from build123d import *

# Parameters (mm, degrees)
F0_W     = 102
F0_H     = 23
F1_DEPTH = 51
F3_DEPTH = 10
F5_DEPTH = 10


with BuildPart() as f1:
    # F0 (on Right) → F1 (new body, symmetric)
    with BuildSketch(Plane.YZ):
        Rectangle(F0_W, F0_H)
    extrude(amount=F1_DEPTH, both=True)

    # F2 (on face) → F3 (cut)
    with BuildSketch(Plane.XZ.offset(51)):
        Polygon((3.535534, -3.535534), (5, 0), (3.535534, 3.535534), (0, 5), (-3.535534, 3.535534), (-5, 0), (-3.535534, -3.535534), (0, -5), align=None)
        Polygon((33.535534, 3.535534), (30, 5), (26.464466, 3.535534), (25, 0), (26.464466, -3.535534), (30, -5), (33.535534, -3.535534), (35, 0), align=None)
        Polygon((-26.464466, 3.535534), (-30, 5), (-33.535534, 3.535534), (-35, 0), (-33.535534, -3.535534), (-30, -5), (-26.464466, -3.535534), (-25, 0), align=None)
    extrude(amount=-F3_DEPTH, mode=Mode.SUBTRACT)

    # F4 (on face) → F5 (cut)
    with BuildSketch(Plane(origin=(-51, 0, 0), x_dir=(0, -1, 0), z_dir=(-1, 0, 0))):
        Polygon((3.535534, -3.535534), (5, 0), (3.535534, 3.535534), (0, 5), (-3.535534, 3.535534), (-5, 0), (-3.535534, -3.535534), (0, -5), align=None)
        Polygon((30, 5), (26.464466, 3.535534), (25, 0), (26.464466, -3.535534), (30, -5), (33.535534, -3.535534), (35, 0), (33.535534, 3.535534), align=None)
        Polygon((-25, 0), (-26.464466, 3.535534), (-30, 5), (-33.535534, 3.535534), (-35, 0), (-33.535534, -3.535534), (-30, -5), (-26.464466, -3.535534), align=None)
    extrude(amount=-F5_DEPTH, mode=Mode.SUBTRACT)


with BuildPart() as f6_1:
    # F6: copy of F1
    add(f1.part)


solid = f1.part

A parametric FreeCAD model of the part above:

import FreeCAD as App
import Part
import Sketcher
Q = App.Units.Quantity


def add_polygon(sketch, points):
    """Adds a closed chain of lines whose ends are joined by coincident constraints."""
    first, n = sketch.GeometryCount, len(points)
    for a, b in zip(points, points[1:] + points[:1]):
        sketch.addGeometry(Part.LineSegment(App.Vector(*a, 0), App.Vector(*b, 0)), False)
    for i in range(n):
        sketch.addConstraint(Sketcher.Constraint("Coincident", first + i, 2, first + (i + 1) % n, 1))

doc = App.newDocument("Part")
body = doc.addObject("PartDesign::Body", "Body")

sketch1 = body.newObject("Sketcher::SketchObject", "Sketch")
sketch1.AttachmentSupport = (doc.getObject("YZ_Plane"), [""])
sketch1.MapMode = "FlatFace"
add_polygon(sketch1, [(-51, 12), (-51, -12), (51, -12), (51, 12)])
sketch1.addConstraint(Sketcher.Constraint("Vertical", 0))
sketch1.addConstraint(Sketcher.Constraint("Horizontal", 1))
sketch1.addConstraint(Sketcher.Constraint("Vertical", 2))
sketch1.addConstraint(Sketcher.Constraint("Horizontal", 3))
sketch1.addConstraint(Sketcher.Constraint("Symmetric", 0, 2, 2, 2, -1, 1))
sketch1.addConstraint(Sketcher.Constraint("DistanceX", 1, 1, 1, 2, Q("102 mm")))
sketch1.addConstraint(Sketcher.Constraint("DistanceY", 0, 2, 0, 1, Q("23 mm")))
pad1 = body.newObject("PartDesign::Pad", "Pad")
pad1.Profile = sketch1
pad1.Length = 102
pad1.Midplane = True

sketch2 = body.newObject("Sketcher::SketchObject", "Sketch001")
sketch2.AttachmentSupport = (doc.getObject("XZ_Plane"), [""])
sketch2.MapMode = "FlatFace"
sketch2.AttachmentOffset = App.Placement(App.Vector(0, 0, 51), App.Rotation())
add_polygon(sketch2, [(3.5, -3.5), (5, 0), (3.5, 3.5), (0, 5), (-3.5, 3.5), (-5, 0), (-3.5, -3.5), (0, -5)])
add_polygon(sketch2, [(33.5, 3.5), (30, 5), (26.5, 3.5), (25, 0), (26.5, -3.5), (30, -5), (33.5, -3.5), (35, 0)])
add_polygon(sketch2, [(-26.5, 3.5), (-30, 5), (-33.5, 3.5), (-35, 0), (-33.5, -3.5), (-30, -5), (-26.5, -3.5), (-25, 0)])
sketch2.addConstraint(Sketcher.Constraint("Symmetric", 0, 2, 4, 2, -1, 1))
sketch2.addConstraint(Sketcher.Constraint("Symmetric", 1, 2, 5, 2, -1, 1))
sketch2.addConstraint(Sketcher.Constraint("Symmetric", 2, 2, 6, 2, -1, 1))
sketch2.addConstraint(Sketcher.Constraint("Symmetric", 3, 2, 7, 2, -1, 1))
sketch2.addConstraint(Sketcher.Constraint("Symmetric", 12, 2, 16, 2, -1, 1))
sketch2.addConstraint(Sketcher.Constraint("Symmetric", 13, 2, 17, 2, -1, 1))
sketch2.addConstraint(Sketcher.Constraint("Symmetric", 14, 2, 18, 2, -1, 1))
sketch2.addConstraint(Sketcher.Constraint("Symmetric", 15, 2, 19, 2, -1, 1))
sketch2.addConstraint(Sketcher.Constraint("Symmetric", 8, 2, 20, 2, -1, 1))
sketch2.addConstraint(Sketcher.Constraint("Symmetric", 9, 2, 21, 2, -1, 1))
sketch2.addConstraint(Sketcher.Constraint("Symmetric", 10, 2, 22, 2, -1, 1))
sketch2.addConstraint(Sketcher.Constraint("Symmetric", 11, 2, 23, 2, -1, 1))
sketch2.addConstraint(Sketcher.Constraint("Symmetric", 1, 2, 3, 2, -2))
sketch2.addConstraint(Sketcher.Constraint("Symmetric", 8, 2, 16, 2, -2))
sketch2.addConstraint(Sketcher.Constraint("Symmetric", 15, 2, 17, 2, -2))
sketch2.addConstraint(Sketcher.Constraint("Symmetric", 11, 2, 21, 2, -2))
sketch2.addConstraint(Sketcher.Constraint("PointOnObject", 0, 2, -1))
sketch2.addConstraint(Sketcher.Constraint("PointOnObject", 2, 2, -2))
sketch2.addConstraint(Sketcher.Constraint("PointOnObject", 10, 2, -1))
sketch2.addConstraint(Sketcher.Constraint("PointOnObject", 14, 2, -1))
sketch2.addConstraint(Sketcher.Constraint("Perpendicular", 0, 2))
sketch2.addConstraint(Sketcher.Constraint("Parallel", 6, 8))
sketch2.addConstraint(Sketcher.Constraint("Parallel", 7, 9))
sketch2.addConstraint(Sketcher.Constraint("Perpendicular", 8, 10))
sketch2.addConstraint(Sketcher.Constraint("Perpendicular", 12, 14))
sketch2.addConstraint(Sketcher.Constraint("Horizontal", 2, 2, 8, 2))
sketch2.addConstraint(Sketcher.Constraint("Horizontal", 3, 2, 9, 2))
sketch2.addConstraint(Sketcher.Constraint("Horizontal", 11, 2, 13, 2))
sketch2.addConstraint(Sketcher.Constraint("Equal", 1, 2))
sketch2.addConstraint(Sketcher.Constraint("DistanceX", -1, 1, 0, 2, Q("5 mm")))
sketch2.addConstraint(Sketcher.Constraint("DistanceX", -1, 1, 8, 2, Q("30 mm")))
sketch2.addConstraint(Sketcher.Constraint("Angle", 0, Q("67.500002 deg")))
pocket1 = body.newObject("PartDesign::Pocket", "Pocket")
pocket1.Profile = sketch2
pocket1.Length = 10

sketch3 = body.newObject("Sketcher::SketchObject", "Sketch002")
sketch3.AttachmentSupport = (doc.getObject("YZ_Plane"), [""])
sketch3.MapMode = "FlatFace"
sketch3.AttachmentOffset = App.Placement(App.Vector(0, 0, -51), App.Rotation())
add_polygon(sketch3, [(-3.5, -3.5), (-5, 0), (-3.5, 3.5), (0, 5), (3.5, 3.5), (5, 0), (3.5, -3.5), (0, -5)])
add_polygon(sketch3, [(-30, 5), (-26.5, 3.5), (-25, 0), (-26.5, -3.5), (-30, -5), (-33.5, -3.5), (-35, 0), (-33.5, 3.5)])
add_polygon(sketch3, [(25, 0), (26.5, 3.5), (30, 5), (33.5, 3.5), (35, 0), (33.5, -3.5), (30, -5), (26.5, -3.5)])
sketch3.addConstraint(Sketcher.Constraint("Symmetric", 0, 2, 4, 2, -1, 1))
sketch3.addConstraint(Sketcher.Constraint("Symmetric", 1, 2, 5, 2, -1, 1))
sketch3.addConstraint(Sketcher.Constraint("Symmetric", 2, 2, 6, 2, -1, 1))
sketch3.addConstraint(Sketcher.Constraint("Symmetric", 3, 2, 7, 2, -1, 1))
sketch3.addConstraint(Sketcher.Constraint("Symmetric", 10, 2, 16, 2, -1, 1))
sketch3.addConstraint(Sketcher.Constraint("Symmetric", 11, 2, 17, 2, -1, 1))
sketch3.addConstraint(Sketcher.Constraint("Symmetric", 12, 2, 18, 2, -1, 1))
sketch3.addConstraint(Sketcher.Constraint("Symmetric", 13, 2, 19, 2, -1, 1))
sketch3.addConstraint(Sketcher.Constraint("Symmetric", 14, 2, 20, 2, -1, 1))
sketch3.addConstraint(Sketcher.Constraint("Symmetric", 15, 2, 21, 2, -1, 1))
sketch3.addConstraint(Sketcher.Constraint("Symmetric", 8, 2, 22, 2, -1, 1))
sketch3.addConstraint(Sketcher.Constraint("Symmetric", 9, 2, 23, 2, -1, 1))
sketch3.addConstraint(Sketcher.Constraint("Symmetric", 1, 2, 3, 2, -2))
sketch3.addConstraint(Sketcher.Constraint("Symmetric", 8, 2, 16, 2, -2))
sketch3.addConstraint(Sketcher.Constraint("Symmetric", 15, 2, 17, 2, -2))
sketch3.addConstraint(Sketcher.Constraint("Symmetric", 14, 2, 18, 2, -2))
sketch3.addConstraint(Sketcher.Constraint("PointOnObject", 0, 2, -1))
sketch3.addConstraint(Sketcher.Constraint("PointOnObject", 2, 2, -2))
sketch3.addConstraint(Sketcher.Constraint("PointOnObject", 9, 2, -1))
sketch3.addConstraint(Sketcher.Constraint("PointOnObject", 13, 2, -1))
sketch3.addConstraint(Sketcher.Constraint("Perpendicular", 0, 2))
sketch3.addConstraint(Sketcher.Constraint("Parallel", 7, 8))
sketch3.addConstraint(Sketcher.Constraint("Perpendicular", 6, 9))
sketch3.addConstraint(Sketcher.Constraint("Perpendicular", 10, 12))
sketch3.addConstraint(Sketcher.Constraint("Perpendicular", 11, 13))
sketch3.addConstraint(Sketcher.Constraint("Horizontal", 3, 2, 8, 2))
sketch3.addConstraint(Sketcher.Constraint("Horizontal", 6, 2, 11, 2))
sketch3.addConstraint(Sketcher.Constraint("Horizontal", 10, 2, 12, 2))
sketch3.addConstraint(Sketcher.Constraint("Equal", 1, 2))
sketch3.addConstraint(Sketcher.Constraint("DistanceX", 0, 2, -1, 1, Q("5 mm")))
sketch3.addConstraint(Sketcher.Constraint("DistanceX", 9, 2, -1, 1, Q("25 mm")))
sketch3.addConstraint(Sketcher.Constraint("Angle", 0, Q("112.499998 deg")))
pocket2 = body.newObject("PartDesign::Pocket", "Pocket001")
pocket2.Profile = sketch3
pocket2.Length = 10
pocket2.Reversed = True
body2 = doc.addObject("PartDesign::Body", "Body001")
doc.recompute()

body2.BaseFeature = body
doc.recompute()
body.Visibility = False

doc.recompute()
